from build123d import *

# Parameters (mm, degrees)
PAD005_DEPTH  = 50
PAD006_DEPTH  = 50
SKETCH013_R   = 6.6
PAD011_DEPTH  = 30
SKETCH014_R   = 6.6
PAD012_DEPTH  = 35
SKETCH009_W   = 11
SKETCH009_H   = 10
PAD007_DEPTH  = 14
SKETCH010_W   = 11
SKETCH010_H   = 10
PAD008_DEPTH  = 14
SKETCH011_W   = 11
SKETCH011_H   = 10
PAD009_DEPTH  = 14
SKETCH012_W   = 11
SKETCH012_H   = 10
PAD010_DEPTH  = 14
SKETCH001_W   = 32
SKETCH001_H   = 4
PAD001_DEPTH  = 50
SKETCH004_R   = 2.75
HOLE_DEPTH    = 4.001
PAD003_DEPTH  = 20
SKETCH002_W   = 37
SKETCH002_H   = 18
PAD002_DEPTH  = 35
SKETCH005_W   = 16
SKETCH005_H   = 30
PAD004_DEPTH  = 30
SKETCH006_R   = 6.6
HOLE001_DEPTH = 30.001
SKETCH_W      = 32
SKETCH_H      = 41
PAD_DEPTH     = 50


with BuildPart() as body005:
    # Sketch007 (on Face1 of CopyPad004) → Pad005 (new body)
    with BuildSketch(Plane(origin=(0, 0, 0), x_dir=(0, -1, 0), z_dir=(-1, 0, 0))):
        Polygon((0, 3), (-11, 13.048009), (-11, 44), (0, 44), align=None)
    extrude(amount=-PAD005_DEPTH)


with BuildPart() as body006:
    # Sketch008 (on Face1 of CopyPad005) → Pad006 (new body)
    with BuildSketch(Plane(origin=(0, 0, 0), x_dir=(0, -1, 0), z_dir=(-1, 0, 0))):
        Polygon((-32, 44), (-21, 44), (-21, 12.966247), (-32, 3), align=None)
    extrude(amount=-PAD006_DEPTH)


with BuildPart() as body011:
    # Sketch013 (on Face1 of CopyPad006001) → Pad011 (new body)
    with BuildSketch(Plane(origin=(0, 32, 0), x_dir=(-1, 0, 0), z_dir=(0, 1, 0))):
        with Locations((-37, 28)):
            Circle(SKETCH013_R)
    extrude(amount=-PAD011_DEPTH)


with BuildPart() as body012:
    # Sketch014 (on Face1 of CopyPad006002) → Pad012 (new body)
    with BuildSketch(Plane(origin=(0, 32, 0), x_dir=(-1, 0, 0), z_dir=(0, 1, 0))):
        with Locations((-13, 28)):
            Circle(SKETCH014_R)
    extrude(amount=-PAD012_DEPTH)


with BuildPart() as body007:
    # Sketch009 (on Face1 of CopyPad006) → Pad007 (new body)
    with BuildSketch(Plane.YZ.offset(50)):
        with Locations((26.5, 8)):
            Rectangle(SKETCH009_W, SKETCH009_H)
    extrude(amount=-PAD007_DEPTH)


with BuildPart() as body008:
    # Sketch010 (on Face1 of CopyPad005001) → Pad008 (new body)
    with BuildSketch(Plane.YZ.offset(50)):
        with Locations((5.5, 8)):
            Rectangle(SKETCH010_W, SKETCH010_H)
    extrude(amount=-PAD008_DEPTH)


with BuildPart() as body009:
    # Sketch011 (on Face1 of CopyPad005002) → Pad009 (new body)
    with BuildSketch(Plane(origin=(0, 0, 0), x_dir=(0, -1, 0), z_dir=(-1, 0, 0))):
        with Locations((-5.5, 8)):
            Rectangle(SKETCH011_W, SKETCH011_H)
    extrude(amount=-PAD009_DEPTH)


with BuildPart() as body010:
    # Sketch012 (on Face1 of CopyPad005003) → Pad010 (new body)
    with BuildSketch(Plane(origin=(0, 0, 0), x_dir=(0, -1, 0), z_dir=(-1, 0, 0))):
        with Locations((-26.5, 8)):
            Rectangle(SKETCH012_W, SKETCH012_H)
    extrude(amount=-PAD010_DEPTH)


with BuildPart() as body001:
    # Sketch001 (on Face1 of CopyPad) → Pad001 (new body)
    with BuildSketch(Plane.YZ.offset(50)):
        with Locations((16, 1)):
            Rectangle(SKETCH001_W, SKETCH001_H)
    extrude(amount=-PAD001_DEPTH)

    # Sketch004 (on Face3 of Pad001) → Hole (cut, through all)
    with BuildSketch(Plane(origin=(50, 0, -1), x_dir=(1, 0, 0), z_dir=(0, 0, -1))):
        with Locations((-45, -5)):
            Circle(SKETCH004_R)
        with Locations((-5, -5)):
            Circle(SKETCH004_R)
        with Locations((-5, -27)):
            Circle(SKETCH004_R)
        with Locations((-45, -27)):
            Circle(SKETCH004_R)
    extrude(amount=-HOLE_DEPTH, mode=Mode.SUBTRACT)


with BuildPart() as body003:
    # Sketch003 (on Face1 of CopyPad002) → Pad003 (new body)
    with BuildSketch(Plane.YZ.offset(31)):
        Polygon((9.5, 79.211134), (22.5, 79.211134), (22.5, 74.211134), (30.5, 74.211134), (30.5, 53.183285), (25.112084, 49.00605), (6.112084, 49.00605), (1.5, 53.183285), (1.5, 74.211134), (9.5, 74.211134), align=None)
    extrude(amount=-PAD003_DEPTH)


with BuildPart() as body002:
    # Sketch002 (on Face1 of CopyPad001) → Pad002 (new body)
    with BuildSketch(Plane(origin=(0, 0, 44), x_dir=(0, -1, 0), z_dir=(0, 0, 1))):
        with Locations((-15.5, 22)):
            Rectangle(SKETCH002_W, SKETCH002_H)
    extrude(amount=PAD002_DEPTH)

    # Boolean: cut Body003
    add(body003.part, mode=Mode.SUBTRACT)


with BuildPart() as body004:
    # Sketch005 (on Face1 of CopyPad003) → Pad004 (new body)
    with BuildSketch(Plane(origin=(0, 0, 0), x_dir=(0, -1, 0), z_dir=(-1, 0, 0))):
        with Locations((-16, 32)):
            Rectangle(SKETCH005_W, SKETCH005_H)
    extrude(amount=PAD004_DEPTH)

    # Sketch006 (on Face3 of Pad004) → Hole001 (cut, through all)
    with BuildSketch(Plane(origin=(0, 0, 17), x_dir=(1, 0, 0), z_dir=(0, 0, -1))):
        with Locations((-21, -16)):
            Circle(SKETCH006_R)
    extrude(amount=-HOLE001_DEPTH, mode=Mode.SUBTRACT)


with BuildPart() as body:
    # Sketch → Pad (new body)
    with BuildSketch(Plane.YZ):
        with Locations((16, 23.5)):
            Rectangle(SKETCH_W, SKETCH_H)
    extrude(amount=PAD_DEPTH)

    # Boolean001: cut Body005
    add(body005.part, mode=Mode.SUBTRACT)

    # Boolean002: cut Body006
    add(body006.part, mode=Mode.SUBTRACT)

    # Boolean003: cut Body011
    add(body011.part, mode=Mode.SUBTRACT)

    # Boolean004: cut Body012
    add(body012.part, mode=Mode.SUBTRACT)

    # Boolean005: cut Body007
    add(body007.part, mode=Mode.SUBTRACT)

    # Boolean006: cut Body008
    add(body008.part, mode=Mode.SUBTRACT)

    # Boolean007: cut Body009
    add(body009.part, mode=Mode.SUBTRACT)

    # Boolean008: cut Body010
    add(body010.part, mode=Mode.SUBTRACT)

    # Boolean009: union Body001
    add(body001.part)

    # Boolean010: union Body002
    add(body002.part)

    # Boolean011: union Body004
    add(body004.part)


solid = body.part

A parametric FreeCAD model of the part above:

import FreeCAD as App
import Part
import Sketcher

V = App.Vector
Q = App.Units.Quantity

doc = App.newDocument("Part")
body = doc.addObject("PartDesign::Body", "Body")

# Sketch on YZ plane
sketch1 = body.newObject("Sketcher::SketchObject", "Sketch")
sketch1.AttachmentSupport = (doc.getObject("YZ_Plane"), [""])
sketch1.MapMode = "FlatFace"
sketch1.addGeometry([
    Part.LineSegment(V(11, 13.048009, 0), V(0, 3, 0)),
    Part.LineSegment(V(0, 3, 0), V(0, 44, 0)),
    Part.LineSegment(V(0, 44, 0), V(11, 44, 0)),
    Part.LineSegment(V(11, 44, 0), V(11, 13.048009, 0)),
], False)
sketch1.addConstraint([
    Sketcher.Constraint("Coincident", 0, 2, 1, 1),
    Sketcher.Constraint("Coincident", 1, 2, 2, 1),
    Sketcher.Constraint("Coincident", 2, 2, 3, 1),
    Sketcher.Constraint("Coincident", 3, 2, 0, 1),
    Sketcher.Constraint("Vertical", 1),
    Sketcher.Constraint("Horizontal", 2),
    Sketcher.Constraint("Vertical", 3),
    Sketcher.Constraint("PointOnObject", 0, 2, -2),
    Sketcher.Constraint("DistanceX", 2, 1, 2, 2, Q("11 mm")),
    Sketcher.Constraint("DistanceY", 1, 1, 1, 2, Q("41 mm")),
    Sketcher.Constraint("DistanceY", -1, 1, 0, 2, Q("3 mm")),
    Sketcher.Constraint("DistanceY", 3, 2, 3, 1, Q("30.951991 mm")),
])
pad1 = body.newObject("PartDesign::Pad", "Pad")
pad1.Profile = sketch1
pad1.Length = 50
body2 = doc.addObject("PartDesign::Body", "Body001")

# Sketch on YZ plane
sketch2 = body2.newObject("Sketcher::SketchObject", "Sketch001")
sketch2.AttachmentSupport = (doc.getObject("YZ_Plane001"), [""])
sketch2.MapMode = "FlatFace"
sketch2.addGeometry([
    Part.LineSegment(V(21, 44, 0), V(32, 44, 0)),
    Part.LineSegment(V(32, 44, 0), V(32, 3, 0)),
    Part.LineSegment(V(32, 3, 0), V(21, 12.966247, 0)),
    Part.LineSegment(V(21, 12.966247, 0), V(21, 44, 0)),
], False)
sketch2.addConstraint([
    Sketcher.Constraint("Coincident", 0, 2, 1, 1),
    Sketcher.Constraint("Coincident", 1, 2, 2, 1),
    Sketcher.Constraint("Coincident", 2, 2, 3, 1),
    Sketcher.Constraint("Coincident", 3, 2, 0, 1),
    Sketcher.Constraint("Horizontal", 0),
    Sketcher.Constraint("Vertical", 1),
    Sketcher.Constraint("Vertical", 3),
    Sketcher.Constraint("DistanceX", 0, 1, 0, 2, Q("11 mm")),
    Sketcher.Constraint("DistanceY", 1, 2, 1, 1, Q("41 mm")),
    Sketcher.Constraint("DistanceX", -1, 1, 0, 2, Q("32 mm")),
    Sketcher.Constraint("DistanceY", -1, 1, 0, 2, Q("44 mm")),
    Sketcher.Constraint("DistanceY", 3, 1, 3, 2, Q("31.033753 mm")),
])
pad2 = body2.newObject("PartDesign::Pad", "Pad001")
pad2.Profile = sketch2
pad2.Length = 50
body3 = doc.addObject("PartDesign::Body", "Body002")

# Sketch on XZ plane
sketch3 = body3.newObject("Sketcher::SketchObject", "Sketch002")
sketch3.AttachmentSupport = (doc.getObject("XZ_Plane002"), [""])
sketch3.MapMode = "FlatFace"
sketch3.AttachmentOffset = App.Placement(V(0, 0, -32), App.Rotation())
sketch3.addGeometry(Part.Circle(V(37, 28, 0), V(0, 0, 1), 6.6), False)
sketch3.addConstraint([
    Sketcher.Constraint("Diameter", 0, Q("13.2 mm")),
    Sketcher.Constraint("DistanceX", -1, 1, 0, 3, Q("37 mm")),
    Sketcher.Constraint("DistanceY", -1, 1, 0, 3, Q("28 mm")),
])
pad3 = body3.newObject("PartDesign::Pad", "Pad002")
pad3.Profile = sketch3
pad3.Length = 30
body4 = doc.addObject("PartDesign::Body", "Body003")

# Sketch on XZ plane
sketch4 = body4.newObject("Sketcher::SketchObject", "Sketch003")
sketch4.AttachmentSupport = (doc.getObject("XZ_Plane003"), [""])
sketch4.MapMode = "FlatFace"
sketch4.AttachmentOffset = App.Placement(V(0, 0, -32), App.Rotation())
sketch4.addGeometry(Part.Circle(V(13, 28, 0), V(0, 0, 1), 6.6), False)
sketch4.addConstraint([
    Sketcher.Constraint("Diameter", 0, Q("13.2 mm")),
    Sketcher.Constraint("DistanceX", -1, 1, 0, 3, Q("13 mm")),
    Sketcher.Constraint("DistanceY", -1, 1, 0, 3, Q("28 mm")),
])
pad4 = body4.newObject("PartDesign::Pad", "Pad003")
pad4.Profile = sketch4
pad4.Length = 35
body5 = doc.addObject("PartDesign::Body", "Body004")

# Sketch on YZ plane
sketch5 = body5.newObject("Sketcher::SketchObject", "Sketch004")
sketch5.AttachmentSupport = (doc.getObject("YZ_Plane004"), [""])
sketch5.MapMode = "FlatFace"
sketch5.AttachmentOffset = App.Placement(V(0, 0, 50), App.Rotation())
sketch5.addGeometry([
    Part.LineSegment(V(21, 13, 0), V(21, 3, 0)),
    Part.LineSegment(V(21, 3, 0), V(32, 3, 0)),
    Part.LineSegment(V(32, 3, 0), V(32, 13, 0)),
    Part.LineSegment(V(32, 13, 0), V(21, 13, 0)),
], False)
sketch5.addConstraint([
    Sketcher.Constraint("Coincident", 0, 2, 1, 1),
    Sketcher.Constraint("Coincident", 1, 2, 2, 1),
    Sketcher.Constraint("Coincident", 2, 2, 3, 1),
    Sketcher.Constraint("Coincident", 3, 2, 0, 1),
    Sketcher.Constraint("Vertical", 0),
    Sketcher.Constraint("Horizontal", 1),
    Sketcher.Constraint("Vertical", 2),
    Sketcher.Constraint("Horizontal", 3),
    Sketcher.Constraint("DistanceX", 1, 1, 1, 2, Q("11 mm")),
    Sketcher.Constraint("DistanceY", 0, 2, 0, 1, Q("10 mm")),
    Sketcher.Constraint("DistanceX", -1, 1, 0, 2, Q("21 mm")),
    Sketcher.Constraint("DistanceY", -1, 1, 0, 2, Q("3 mm")),
])
pad5 = body5.newObject("PartDesign::Pad", "Pad004")
pad5.Profile = sketch5
pad5.Length = 14
pad5.Reversed = True
body6 = doc.addObject("PartDesign::Body", "Body005")

# Sketch on YZ plane
sketch6 = body6.newObject("Sketcher::SketchObject", "Sketch005")
sketch6.AttachmentSupport = (doc.getObject("YZ_Plane005"), [""])
sketch6.MapMode = "FlatFace"
sketch6.AttachmentOffset = App.Placement(V(0, 0, 50), App.Rotation())
sketch6.addGeometry([
    Part.LineSegment(V(0, 13, 0), V(0, 3, 0)),
    Part.LineSegment(V(0, 3, 0), V(11, 3, 0)),
    Part.LineSegment(V(11, 3, 0), V(11, 13, 0)),
    Part.LineSegment(V(11, 13, 0), V(0, 13, 0)),
], False)
sketch6.addConstraint([
    Sketcher.Constraint("Coincident", 0, 2, 1, 1),
    Sketcher.Constraint("Coincident", 1, 2, 2, 1),
    Sketcher.Constraint("Coincident", 2, 2, 3, 1),
    Sketcher.Constraint("Coincident", 3, 2, 0, 1),
    Sketcher.Constraint("Vertical", 0),
    Sketcher.Constraint("Horizontal", 1),
    Sketcher.Constraint("Vertical", 2),
    Sketcher.Constraint("Horizontal", 3),
    Sketcher.Constraint("PointOnObject", 0, 2, -2),
    Sketcher.Constraint("DistanceX", 1, 1, 1, 2, Q("11 mm")),
    Sketcher.Constraint("DistanceY", 0, 2, 0, 1, Q("10 mm")),
    Sketcher.Constraint("DistanceY", -1, 1, 0, 2, Q("3 mm")),
])
pad6 = body6.newObject("PartDesign::Pad", "Pad005")
pad6.Profile = sketch6
pad6.Length = 14
pad6.Reversed = True
body7 = doc.addObject("PartDesign::Body", "Body006")

# Sketch on YZ plane
sketch7 = body7.newObject("Sketcher::SketchObject", "Sketch006")
sketch7.AttachmentSupport = (doc.getObject("YZ_Plane006"), [""])
sketch7.MapMode = "FlatFace"
sketch7.addGeometry([
    Part.LineSegment(V(11, 13, 0), V(11, 3, 0)),
    Part.LineSegment(V(11, 3, 0), V(0, 3, 0)),
    Part.LineSegment(V(0, 3, 0), V(0, 13, 0)),
    Part.LineSegment(V(0, 13, 0), V(11, 13, 0)),
], False)
sketch7.addConstraint([
    Sketcher.Constraint("Coincident", 0, 2, 1, 1),
    Sketcher.Constraint("Coincident", 1, 2, 2, 1),
    Sketcher.Constraint("Coincident", 2, 2, 3, 1),
    Sketcher.Constraint("Coincident", 3, 2, 0, 1),
    Sketcher.Constraint("Vertical", 0),
    Sketcher.Constraint("Horizontal", 1),
    Sketcher.Constraint("Vertical", 2),
    Sketcher.Constraint("Horizontal", 3),
    Sketcher.Constraint("PointOnObject", 1, 2, -2),
    Sketcher.Constraint("DistanceX", 1, 2, 1, 1, Q("11 mm")),
    Sketcher.Constraint("DistanceY", 0, 2, 0, 1, Q("10 mm")),
    Sketcher.Constraint("DistanceY", -1, 1, 0, 2, Q("3 mm")),
])
pad7 = body7.newObject("PartDesign::Pad", "Pad006")
pad7.Profile = sketch7
pad7.Length = 14
body8 = doc.addObject("PartDesign::Body", "Body007")

# Sketch on YZ plane
sketch8 = body8.newObject("Sketcher::SketchObject", "Sketch007")
sketch8.AttachmentSupport = (doc.getObject("YZ_Plane007"), [""])
sketch8.MapMode = "FlatFace"
sketch8.addGeometry([
    Part.LineSegment(V(32, 13, 0), V(32, 3, 0)),
    Part.LineSegment(V(32, 3, 0), V(21, 3, 0)),
    Part.LineSegment(V(21, 3, 0), V(21, 13, 0)),
    Part.LineSegment(V(21, 13, 0), V(32, 13, 0)),
], False)
sketch8.addConstraint([
    Sketcher.Constraint("Coincident", 0, 2, 1, 1),
    Sketcher.Constraint("Coincident", 1, 2, 2, 1),
    Sketcher.Constraint("Coincident", 2, 2, 3, 1),
    Sketcher.Constraint("Coincident", 3, 2, 0, 1),
    Sketcher.Constraint("Vertical", 0),
    Sketcher.Constraint("Horizontal", 1),
    Sketcher.Constraint("Vertical", 2),
    Sketcher.Constraint("Horizontal", 3),
    Sketcher.Constraint("DistanceX", 1, 2, 1, 1, Q("11 mm")),
    Sketcher.Constraint("DistanceY", 0, 2, 0, 1, Q("10 mm")),
    Sketcher.Constraint("DistanceX", -1, 1, 0, 2, Q("32 mm")),
    Sketcher.Constraint("DistanceY", -1, 1, 0, 2, Q("3 mm")),
])
pad8 = body8.newObject("PartDesign::Pad", "Pad007")
pad8.Profile = sketch8
pad8.Length = 14
body9 = doc.addObject("PartDesign::Body", "Body008")

# Sketch on YZ plane
sketch9 = body9.newObject("Sketcher::SketchObject", "Sketch008")
sketch9.AttachmentSupport = (doc.getObject("YZ_Plane008"), [""])
sketch9.MapMode = "FlatFace"
sketch9.AttachmentOffset = App.Placement(V(0, 0, 50), App.Rotation())
sketch9.addGeometry([
    Part.LineSegment(V(0, 3, 0), V(0, -1, 0)),
    Part.LineSegment(V(0, -1, 0), V(32, -1, 0)),
    Part.LineSegment(V(32, -1, 0), V(32, 3, 0)),
    Part.LineSegment(V(32, 3, 0), V(0, 3, 0)),
], False)
sketch9.addConstraint([
    Sketcher.Constraint("Coincident", 0, 2, 1, 1),
    Sketcher.Constraint("Coincident", 1, 2, 2, 1),
    Sketcher.Constraint("Coincident", 2, 2, 3, 1),
    Sketcher.Constraint("Coincident", 3, 2, 0, 1),
    Sketcher.Constraint("Vertical", 0),
    Sketcher.Constraint("Horizontal", 1),
    Sketcher.Constraint("Vertical", 2),
    Sketcher.Constraint("Horizontal", 3),
    Sketcher.Constraint("PointOnObject", 0, 2, -2),
    Sketcher.Constraint("DistanceX", 1, 1, 1, 2, Q("32 mm")),
    Sketcher.Constraint("DistanceY", 0, 2, 0, 1, Q("4 mm")),
    Sketcher.Constraint("DistanceY", 0, 2, -1, 1, Q("1 mm")),
])
pad9 = body9.newObject("PartDesign::Pad", "Pad008")
pad9.Profile = sketch9
pad9.Length = 50
pad9.Reversed = True

# Sketch on XY plane
sketch10 = body9.newObject("Sketcher::SketchObject", "Sketch009")
sketch10.AttachmentSupport = (doc.getObject("XY_Plane008"), [""])
sketch10.MapMode = "FlatFace"
sketch10.AttachmentOffset = App.Placement(V(0, 0, -1), App.Rotation())
sketch10.addGeometry([
    Part.Circle(V(5, 5, 0), V(0, 0, 1), 2.75),
    Part.Circle(V(45, 5, 0), V(0, 0, 1), 2.75),
    Part.Circle(V(45, 27, 0), V(0, 0, 1), 2.75),
    Part.Circle(V(5, 27, 0), V(0, 0, 1), 2.75),
], False)
sketch10.addConstraint([
    Sketcher.Constraint("Equal", 0, 1),
    Sketcher.Constraint("Equal", 1, 2),
    Sketcher.Constraint("Equal", 2, 3),
    Sketcher.Constraint("Horizontal", 0, 3, 1, 3),
    Sketcher.Constraint("Horizontal", 2, 3, 3, 3),
    Sketcher.Constraint("Vertical", 1, 3, 2, 3),
    Sketcher.Constraint("Vertical", 0, 3, 3, 3),
    Sketcher.Constraint("Diameter", 0, Q("5.5 mm")),
    Sketcher.Constraint("DistanceX", -1, 1, 0, 3, Q("5 mm")),
    Sketcher.Constraint("DistanceY", -1, 1, 0, 3, Q("5 mm")),
    Sketcher.Constraint("DistanceX", -1, 1, 1, 3, Q("45 mm")),
    Sketcher.Constraint("DistanceY", -1, 1, 2, 3, Q("27 mm")),
])
pocket1 = body9.newObject("PartDesign::Pocket", "Pocket")
pocket1.Profile = sketch10
pocket1.Type = "ThroughAll"
pocket1.Reversed = True
body10 = doc.addObject("PartDesign::Body", "Body009")

# Sketch on YZ plane
sketch11 = body10.newObject("Sketcher::SketchObject", "Sketch010")
sketch11.AttachmentSupport = (doc.getObject("YZ_Plane009"), [""])
sketch11.MapMode = "FlatFace"
sketch11.AttachmentOffset = App.Placement(V(0, 0, 31), App.Rotation())
sketch11.addGeometry([
    Part.LineSegment(V(22.5, 79.211134, 0), V(9.5, 79.211134, 0)),  # 0
    Part.LineSegment(V(9.5, 79.211134, 0), V(9.5, 74.211134, 0)),  # 1
    Part.LineSegment(V(9.5, 74.211134, 0), V(1.5, 74.211134, 0)),  # 2
    Part.LineSegment(V(1.5, 74.211134, 0), V(1.5, 53.183285, 0)),  # 3
    Part.LineSegment(V(1.5, 53.183285, 0), V(6.112084, 49.00605, 0)),  # 4
    Part.LineSegment(V(6.112084, 49.00605, 0), V(25.112084, 49.00605, 0)),  # 5
    Part.LineSegment(V(25.112084, 49.00605, 0), V(30.5, 53.183285, 0)),  # 6
    Part.LineSegment(V(30.5, 53.183285, 0), V(30.5, 74.211134, 0)),  # 7
    Part.LineSegment(V(30.5, 74.211134, 0), V(22.5, 74.211134, 0)),  # 8
    Part.LineSegment(V(22.5, 74.211134, 0), V(22.5, 79.211134, 0)),  # 9
], False)
sketch11.addConstraint([
    Sketcher.Constraint("Coincident", 0, 2, 1, 1),
    Sketcher.Constraint("Coincident", 1, 2, 2, 1),
    Sketcher.Constraint("Coincident", 2, 2, 3, 1),
    Sketcher.Constraint("Coincident", 3, 2, 4, 1),
    Sketcher.Constraint("Coincident", 4, 2, 5, 1),
    Sketcher.Constraint("Coincident", 5, 2, 6, 1),
    Sketcher.Constraint("Coincident", 6, 2, 7, 1),
    Sketcher.Constraint("Coincident", 7, 2, 8, 1),
    Sketcher.Constraint("Coincident", 8, 2, 9, 1),
    Sketcher.Constraint("Coincident", 9, 2, 0, 1),
    Sketcher.Constraint("Horizontal", 0),
    Sketcher.Constraint("Vertical", 1),
    Sketcher.Constraint("Horizontal", 2),
    Sketcher.Constraint("Vertical", 3),
    Sketcher.Constraint("Horizontal", 5),
    Sketcher.Constraint("Vertical", 7),
    Sketcher.Constraint("Horizontal", 8),
    Sketcher.Constraint("Vertical", 9),
    Sketcher.Constraint("Horizontal", 3, 2, 6, 2),
    Sketcher.Constraint("Horizontal", 2, 2, 7, 2),
    Sketcher.Constraint("Equal", 2, 8),
    Sketcher.Constraint("DistanceX", 0, 2, 0, 1, Q("13 mm")),
    Sketcher.Constraint("DistanceX", 2, 2, 2, 1, Q("8 mm")),
    Sketcher.Constraint("DistanceX", 5, 1, 5, 2, Q("19 mm")),
    Sketcher.Constraint("DistanceY", 1, 2, 1, 1, Q("5 mm")),
    Sketcher.Constraint("DistanceX", -1, 1, 0, 2, Q("9.5 mm")),
    Sketcher.Constraint("DistanceY", 3, 2, 3, 1, Q("21.027849 mm")),
    Sketcher.Constraint("Distance", 4, Q("6.222589 mm")),
    Sketcher.Constraint("DistanceY", -1, 1, 4, 2, Q("49.00605 mm")),
    Sketcher.Constraint("Distance", 6, Q("6.817546 mm")),
])
pad10 = body10.newObject("PartDesign::Pad", "Pad009")
pad10.Profile = sketch11
pad10.Length = 20
pad10.Reversed = True
body11 = doc.addObject("PartDesign::Body", "Body010")

# Sketch on XY plane
sketch12 = body11.newObject("Sketcher::SketchObject", "Sketch011")
sketch12.AttachmentSupport = (doc.getObject("XY_Plane010"), [""])
sketch12.MapMode = "FlatFace"
sketch12.AttachmentOffset = App.Placement(V(0, 0, 44), App.Rotation())
sketch12.addGeometry([
    Part.LineSegment(V(31, 34, 0), V(13, 34, 0)),
    Part.LineSegment(V(13, 34, 0), V(13, -3, 0)),
    Part.LineSegment(V(13, -3, 0), V(31, -3, 0)),
    Part.LineSegment(V(31, -3, 0), V(31, 34, 0)),
], False)
sketch12.addConstraint([
    Sketcher.Constraint("Coincident", 0, 2, 1, 1),
    Sketcher.Constraint("Coincident", 1, 2, 2, 1),
    Sketcher.Constraint("Coincident", 2, 2, 3, 1),
    Sketcher.Constraint("Coincident", 3, 2, 0, 1),
    Sketcher.Constraint("Horizontal", 0),
    Sketcher.Constraint("Vertical", 1),
    Sketcher.Constraint("Horizontal", 2),
    Sketcher.Constraint("Vertical", 3),
    Sketcher.Constraint("DistanceX", 0, 2, 0, 1, Q("18 mm")),
    Sketcher.Constraint("DistanceY", 1, 2, 1, 1, Q("37 mm")),
    Sketcher.Constraint("DistanceX", -1, 1, 0, 2, Q("13 mm")),
    Sketcher.Constraint("DistanceY", -1, 1, 0, 2, Q("34 mm")),
])
pad11 = body11.newObject("PartDesign::Pad", "Pad010")
pad11.Profile = sketch12
pad11.Length = 35
doc.recompute()

boolean = body11.newObject("PartDesign::Boolean", "Boolean")
boolean.Type = "Cut"
boolean.addObjects([body10])
body12 = doc.addObject("PartDesign::Body", "Body011")

# Sketch on YZ plane
sketch13 = body12.newObject("Sketcher::SketchObject", "Sketch012")
sketch13.AttachmentSupport = (doc.getObject("YZ_Plane011"), [""])
sketch13.MapMode = "FlatFace"
sketch13.addGeometry([
    Part.LineSegment(V(24, 47, 0), V(24, 17, 0)),
    Part.LineSegment(V(24, 17, 0), V(8, 17, 0)),
    Part.LineSegment(V(8, 17, 0), V(8, 47, 0)),
    Part.LineSegment(V(8, 47, 0), V(24, 47, 0)),
], False)
sketch13.addConstraint([
    Sketcher.Constraint("Coincident", 0, 2, 1, 1),
    Sketcher.Constraint("Coincident", 1, 2, 2, 1),
    Sketcher.Constraint("Coincident", 2, 2, 3, 1),
    Sketcher.Constraint("Coincident", 3, 2, 0, 1),
    Sketcher.Constraint("Vertical", 0),
    Sketcher.Constraint("Horizontal", 1),
    Sketcher.Constraint("Vertical", 2),
    Sketcher.Constraint("Horizontal", 3),
    Sketcher.Constraint("DistanceX", 1, 2, 1, 1, Q("16 mm")),
    Sketcher.Constraint("DistanceY", 0, 2, 0, 1, Q("30 mm")),
    Sketcher.Constraint("DistanceX", -1, 1, 0, 2, Q("24 mm")),
    Sketcher.Constraint("DistanceY", -1, 1, 0, 2, Q("17 mm")),
])
pad12 = body12.newObject("PartDesign::Pad", "Pad011")
pad12.Profile = sketch13
pad12.Length = 30
pad12.Reversed = True

# Sketch on XY plane
sketch14 = body12.newObject("Sketcher::SketchObject", "Sketch013")
sketch14.AttachmentSupport = (doc.getObject("XY_Plane011"), [""])
sketch14.MapMode = "FlatFace"
sketch14.AttachmentOffset = App.Placement(V(0, 0, 17), App.Rotation())
sketch14.addGeometry(Part.Circle(V(-21, 16, 0), V(0, 0, 1), 6.6), False)
sketch14.addConstraint([
    Sketcher.Constraint("Diameter", 0, Q("13.2 mm")),
    Sketcher.Constraint("DistanceX", 0, 3, -1, 1, Q("21 mm")),
    Sketcher.Constraint("DistanceY", -1, 1, 0, 3, Q("16 mm")),
])
pocket2 = body12.newObject("PartDesign::Pocket", "Pocket001")
pocket2.Profile = sketch14
pocket2.Type = "ThroughAll"
pocket2.Reversed = True
body13 = doc.addObject("PartDesign::Body", "Body012")

# Sketch on YZ plane
sketch15 = body13.newObject("Sketcher::SketchObject", "Sketch014")
sketch15.AttachmentSupport = (doc.getObject("YZ_Plane012"), [""])
sketch15.MapMode = "FlatFace"
sketch15.addGeometry([
    Part.LineSegment(V(0, 44, 0), V(0, 3, 0)),
    Part.LineSegment(V(0, 3, 0), V(32, 3, 0)),
    Part.LineSegment(V(32, 3, 0), V(32, 44, 0)),
    Part.LineSegment(V(32, 44, 0), V(0, 44, 0)),
], False)
sketch15.addConstraint([
    Sketcher.Constraint("Coincident", 0, 2, 1, 1),
    Sketcher.Constraint("Coincident", 1, 2, 2, 1),
    Sketcher.Constraint("Coincident", 2, 2, 3, 1),
    Sketcher.Constraint("Coincident", 3, 2, 0, 1),
    Sketcher.Constraint("Vertical", 0),
    Sketcher.Constraint("Horizontal", 1),
    Sketcher.Constraint("Vertical", 2),
    Sketcher.Constraint("Horizontal", 3),
    Sketcher.Constraint("PointOnObject", 0, 2, -2),
    Sketcher.Constraint("DistanceX", 1, 1, 1, 2, Q("32 mm")),
    Sketcher.Constraint("DistanceY", 0, 2, 0, 1, Q("41 mm")),
    Sketcher.Constraint("DistanceY", -1, 1, 0, 2, Q("3 mm")),
])
pad13 = body13.newObject("PartDesign::Pad", "Pad012")
pad13.Profile = sketch15
pad13.Length = 50
doc.recompute()

boolean2 = body13.newObject("PartDesign::Boolean", "Boolean001")
boolean2.Type = "Cut"
boolean2.addObjects([body])
doc.recompute()

boolean3 = body13.newObject("PartDesign::Boolean", "Boolean002")
boolean3.Type = "Cut"
boolean3.addObjects([body2])
doc.recompute()

boolean4 = body13.newObject("PartDesign::Boolean", "Boolean003")
boolean4.Type = "Cut"
boolean4.addObjects([body3])
doc.recompute()

boolean5 = body13.newObject("PartDesign::Boolean", "Boolean004")
boolean5.Type = "Cut"
boolean5.addObjects([body4])
doc.recompute()

boolean6 = body13.newObject("PartDesign::Boolean", "Boolean005")
boolean6.Type = "Cut"
boolean6.addObjects([body5])
doc.recompute()

boolean7 = body13.newObject("PartDesign::Boolean", "Boolean006")
boolean7.Type = "Cut"
boolean7.addObjects([body6])
doc.recompute()

boolean8 = body13.newObject("PartDesign::Boolean", "Boolean007")
boolean8.Type = "Cut"
boolean8.addObjects([body7])
doc.recompute()

boolean9 = body13.newObject("PartDesign::Boolean", "Boolean008")
boolean9.Type = "Cut"
boolean9.addObjects([body8])
doc.recompute()

boolean10 = body13.newObject("PartDesign::Boolean", "Boolean009")
boolean10.Type = "Fuse"
boolean10.addObjects([body9])
doc.recompute()

boolean11 = body13.newObject("PartDesign::Boolean", "Boolean010")
boolean11.Type = "Fuse"
boolean11.addObjects([body11])
doc.recompute()

boolean12 = body13.newObject("PartDesign::Boolean", "Boolean011")
boolean12.Type = "Fuse"
boolean12.addObjects([body12])

doc.recompute()
